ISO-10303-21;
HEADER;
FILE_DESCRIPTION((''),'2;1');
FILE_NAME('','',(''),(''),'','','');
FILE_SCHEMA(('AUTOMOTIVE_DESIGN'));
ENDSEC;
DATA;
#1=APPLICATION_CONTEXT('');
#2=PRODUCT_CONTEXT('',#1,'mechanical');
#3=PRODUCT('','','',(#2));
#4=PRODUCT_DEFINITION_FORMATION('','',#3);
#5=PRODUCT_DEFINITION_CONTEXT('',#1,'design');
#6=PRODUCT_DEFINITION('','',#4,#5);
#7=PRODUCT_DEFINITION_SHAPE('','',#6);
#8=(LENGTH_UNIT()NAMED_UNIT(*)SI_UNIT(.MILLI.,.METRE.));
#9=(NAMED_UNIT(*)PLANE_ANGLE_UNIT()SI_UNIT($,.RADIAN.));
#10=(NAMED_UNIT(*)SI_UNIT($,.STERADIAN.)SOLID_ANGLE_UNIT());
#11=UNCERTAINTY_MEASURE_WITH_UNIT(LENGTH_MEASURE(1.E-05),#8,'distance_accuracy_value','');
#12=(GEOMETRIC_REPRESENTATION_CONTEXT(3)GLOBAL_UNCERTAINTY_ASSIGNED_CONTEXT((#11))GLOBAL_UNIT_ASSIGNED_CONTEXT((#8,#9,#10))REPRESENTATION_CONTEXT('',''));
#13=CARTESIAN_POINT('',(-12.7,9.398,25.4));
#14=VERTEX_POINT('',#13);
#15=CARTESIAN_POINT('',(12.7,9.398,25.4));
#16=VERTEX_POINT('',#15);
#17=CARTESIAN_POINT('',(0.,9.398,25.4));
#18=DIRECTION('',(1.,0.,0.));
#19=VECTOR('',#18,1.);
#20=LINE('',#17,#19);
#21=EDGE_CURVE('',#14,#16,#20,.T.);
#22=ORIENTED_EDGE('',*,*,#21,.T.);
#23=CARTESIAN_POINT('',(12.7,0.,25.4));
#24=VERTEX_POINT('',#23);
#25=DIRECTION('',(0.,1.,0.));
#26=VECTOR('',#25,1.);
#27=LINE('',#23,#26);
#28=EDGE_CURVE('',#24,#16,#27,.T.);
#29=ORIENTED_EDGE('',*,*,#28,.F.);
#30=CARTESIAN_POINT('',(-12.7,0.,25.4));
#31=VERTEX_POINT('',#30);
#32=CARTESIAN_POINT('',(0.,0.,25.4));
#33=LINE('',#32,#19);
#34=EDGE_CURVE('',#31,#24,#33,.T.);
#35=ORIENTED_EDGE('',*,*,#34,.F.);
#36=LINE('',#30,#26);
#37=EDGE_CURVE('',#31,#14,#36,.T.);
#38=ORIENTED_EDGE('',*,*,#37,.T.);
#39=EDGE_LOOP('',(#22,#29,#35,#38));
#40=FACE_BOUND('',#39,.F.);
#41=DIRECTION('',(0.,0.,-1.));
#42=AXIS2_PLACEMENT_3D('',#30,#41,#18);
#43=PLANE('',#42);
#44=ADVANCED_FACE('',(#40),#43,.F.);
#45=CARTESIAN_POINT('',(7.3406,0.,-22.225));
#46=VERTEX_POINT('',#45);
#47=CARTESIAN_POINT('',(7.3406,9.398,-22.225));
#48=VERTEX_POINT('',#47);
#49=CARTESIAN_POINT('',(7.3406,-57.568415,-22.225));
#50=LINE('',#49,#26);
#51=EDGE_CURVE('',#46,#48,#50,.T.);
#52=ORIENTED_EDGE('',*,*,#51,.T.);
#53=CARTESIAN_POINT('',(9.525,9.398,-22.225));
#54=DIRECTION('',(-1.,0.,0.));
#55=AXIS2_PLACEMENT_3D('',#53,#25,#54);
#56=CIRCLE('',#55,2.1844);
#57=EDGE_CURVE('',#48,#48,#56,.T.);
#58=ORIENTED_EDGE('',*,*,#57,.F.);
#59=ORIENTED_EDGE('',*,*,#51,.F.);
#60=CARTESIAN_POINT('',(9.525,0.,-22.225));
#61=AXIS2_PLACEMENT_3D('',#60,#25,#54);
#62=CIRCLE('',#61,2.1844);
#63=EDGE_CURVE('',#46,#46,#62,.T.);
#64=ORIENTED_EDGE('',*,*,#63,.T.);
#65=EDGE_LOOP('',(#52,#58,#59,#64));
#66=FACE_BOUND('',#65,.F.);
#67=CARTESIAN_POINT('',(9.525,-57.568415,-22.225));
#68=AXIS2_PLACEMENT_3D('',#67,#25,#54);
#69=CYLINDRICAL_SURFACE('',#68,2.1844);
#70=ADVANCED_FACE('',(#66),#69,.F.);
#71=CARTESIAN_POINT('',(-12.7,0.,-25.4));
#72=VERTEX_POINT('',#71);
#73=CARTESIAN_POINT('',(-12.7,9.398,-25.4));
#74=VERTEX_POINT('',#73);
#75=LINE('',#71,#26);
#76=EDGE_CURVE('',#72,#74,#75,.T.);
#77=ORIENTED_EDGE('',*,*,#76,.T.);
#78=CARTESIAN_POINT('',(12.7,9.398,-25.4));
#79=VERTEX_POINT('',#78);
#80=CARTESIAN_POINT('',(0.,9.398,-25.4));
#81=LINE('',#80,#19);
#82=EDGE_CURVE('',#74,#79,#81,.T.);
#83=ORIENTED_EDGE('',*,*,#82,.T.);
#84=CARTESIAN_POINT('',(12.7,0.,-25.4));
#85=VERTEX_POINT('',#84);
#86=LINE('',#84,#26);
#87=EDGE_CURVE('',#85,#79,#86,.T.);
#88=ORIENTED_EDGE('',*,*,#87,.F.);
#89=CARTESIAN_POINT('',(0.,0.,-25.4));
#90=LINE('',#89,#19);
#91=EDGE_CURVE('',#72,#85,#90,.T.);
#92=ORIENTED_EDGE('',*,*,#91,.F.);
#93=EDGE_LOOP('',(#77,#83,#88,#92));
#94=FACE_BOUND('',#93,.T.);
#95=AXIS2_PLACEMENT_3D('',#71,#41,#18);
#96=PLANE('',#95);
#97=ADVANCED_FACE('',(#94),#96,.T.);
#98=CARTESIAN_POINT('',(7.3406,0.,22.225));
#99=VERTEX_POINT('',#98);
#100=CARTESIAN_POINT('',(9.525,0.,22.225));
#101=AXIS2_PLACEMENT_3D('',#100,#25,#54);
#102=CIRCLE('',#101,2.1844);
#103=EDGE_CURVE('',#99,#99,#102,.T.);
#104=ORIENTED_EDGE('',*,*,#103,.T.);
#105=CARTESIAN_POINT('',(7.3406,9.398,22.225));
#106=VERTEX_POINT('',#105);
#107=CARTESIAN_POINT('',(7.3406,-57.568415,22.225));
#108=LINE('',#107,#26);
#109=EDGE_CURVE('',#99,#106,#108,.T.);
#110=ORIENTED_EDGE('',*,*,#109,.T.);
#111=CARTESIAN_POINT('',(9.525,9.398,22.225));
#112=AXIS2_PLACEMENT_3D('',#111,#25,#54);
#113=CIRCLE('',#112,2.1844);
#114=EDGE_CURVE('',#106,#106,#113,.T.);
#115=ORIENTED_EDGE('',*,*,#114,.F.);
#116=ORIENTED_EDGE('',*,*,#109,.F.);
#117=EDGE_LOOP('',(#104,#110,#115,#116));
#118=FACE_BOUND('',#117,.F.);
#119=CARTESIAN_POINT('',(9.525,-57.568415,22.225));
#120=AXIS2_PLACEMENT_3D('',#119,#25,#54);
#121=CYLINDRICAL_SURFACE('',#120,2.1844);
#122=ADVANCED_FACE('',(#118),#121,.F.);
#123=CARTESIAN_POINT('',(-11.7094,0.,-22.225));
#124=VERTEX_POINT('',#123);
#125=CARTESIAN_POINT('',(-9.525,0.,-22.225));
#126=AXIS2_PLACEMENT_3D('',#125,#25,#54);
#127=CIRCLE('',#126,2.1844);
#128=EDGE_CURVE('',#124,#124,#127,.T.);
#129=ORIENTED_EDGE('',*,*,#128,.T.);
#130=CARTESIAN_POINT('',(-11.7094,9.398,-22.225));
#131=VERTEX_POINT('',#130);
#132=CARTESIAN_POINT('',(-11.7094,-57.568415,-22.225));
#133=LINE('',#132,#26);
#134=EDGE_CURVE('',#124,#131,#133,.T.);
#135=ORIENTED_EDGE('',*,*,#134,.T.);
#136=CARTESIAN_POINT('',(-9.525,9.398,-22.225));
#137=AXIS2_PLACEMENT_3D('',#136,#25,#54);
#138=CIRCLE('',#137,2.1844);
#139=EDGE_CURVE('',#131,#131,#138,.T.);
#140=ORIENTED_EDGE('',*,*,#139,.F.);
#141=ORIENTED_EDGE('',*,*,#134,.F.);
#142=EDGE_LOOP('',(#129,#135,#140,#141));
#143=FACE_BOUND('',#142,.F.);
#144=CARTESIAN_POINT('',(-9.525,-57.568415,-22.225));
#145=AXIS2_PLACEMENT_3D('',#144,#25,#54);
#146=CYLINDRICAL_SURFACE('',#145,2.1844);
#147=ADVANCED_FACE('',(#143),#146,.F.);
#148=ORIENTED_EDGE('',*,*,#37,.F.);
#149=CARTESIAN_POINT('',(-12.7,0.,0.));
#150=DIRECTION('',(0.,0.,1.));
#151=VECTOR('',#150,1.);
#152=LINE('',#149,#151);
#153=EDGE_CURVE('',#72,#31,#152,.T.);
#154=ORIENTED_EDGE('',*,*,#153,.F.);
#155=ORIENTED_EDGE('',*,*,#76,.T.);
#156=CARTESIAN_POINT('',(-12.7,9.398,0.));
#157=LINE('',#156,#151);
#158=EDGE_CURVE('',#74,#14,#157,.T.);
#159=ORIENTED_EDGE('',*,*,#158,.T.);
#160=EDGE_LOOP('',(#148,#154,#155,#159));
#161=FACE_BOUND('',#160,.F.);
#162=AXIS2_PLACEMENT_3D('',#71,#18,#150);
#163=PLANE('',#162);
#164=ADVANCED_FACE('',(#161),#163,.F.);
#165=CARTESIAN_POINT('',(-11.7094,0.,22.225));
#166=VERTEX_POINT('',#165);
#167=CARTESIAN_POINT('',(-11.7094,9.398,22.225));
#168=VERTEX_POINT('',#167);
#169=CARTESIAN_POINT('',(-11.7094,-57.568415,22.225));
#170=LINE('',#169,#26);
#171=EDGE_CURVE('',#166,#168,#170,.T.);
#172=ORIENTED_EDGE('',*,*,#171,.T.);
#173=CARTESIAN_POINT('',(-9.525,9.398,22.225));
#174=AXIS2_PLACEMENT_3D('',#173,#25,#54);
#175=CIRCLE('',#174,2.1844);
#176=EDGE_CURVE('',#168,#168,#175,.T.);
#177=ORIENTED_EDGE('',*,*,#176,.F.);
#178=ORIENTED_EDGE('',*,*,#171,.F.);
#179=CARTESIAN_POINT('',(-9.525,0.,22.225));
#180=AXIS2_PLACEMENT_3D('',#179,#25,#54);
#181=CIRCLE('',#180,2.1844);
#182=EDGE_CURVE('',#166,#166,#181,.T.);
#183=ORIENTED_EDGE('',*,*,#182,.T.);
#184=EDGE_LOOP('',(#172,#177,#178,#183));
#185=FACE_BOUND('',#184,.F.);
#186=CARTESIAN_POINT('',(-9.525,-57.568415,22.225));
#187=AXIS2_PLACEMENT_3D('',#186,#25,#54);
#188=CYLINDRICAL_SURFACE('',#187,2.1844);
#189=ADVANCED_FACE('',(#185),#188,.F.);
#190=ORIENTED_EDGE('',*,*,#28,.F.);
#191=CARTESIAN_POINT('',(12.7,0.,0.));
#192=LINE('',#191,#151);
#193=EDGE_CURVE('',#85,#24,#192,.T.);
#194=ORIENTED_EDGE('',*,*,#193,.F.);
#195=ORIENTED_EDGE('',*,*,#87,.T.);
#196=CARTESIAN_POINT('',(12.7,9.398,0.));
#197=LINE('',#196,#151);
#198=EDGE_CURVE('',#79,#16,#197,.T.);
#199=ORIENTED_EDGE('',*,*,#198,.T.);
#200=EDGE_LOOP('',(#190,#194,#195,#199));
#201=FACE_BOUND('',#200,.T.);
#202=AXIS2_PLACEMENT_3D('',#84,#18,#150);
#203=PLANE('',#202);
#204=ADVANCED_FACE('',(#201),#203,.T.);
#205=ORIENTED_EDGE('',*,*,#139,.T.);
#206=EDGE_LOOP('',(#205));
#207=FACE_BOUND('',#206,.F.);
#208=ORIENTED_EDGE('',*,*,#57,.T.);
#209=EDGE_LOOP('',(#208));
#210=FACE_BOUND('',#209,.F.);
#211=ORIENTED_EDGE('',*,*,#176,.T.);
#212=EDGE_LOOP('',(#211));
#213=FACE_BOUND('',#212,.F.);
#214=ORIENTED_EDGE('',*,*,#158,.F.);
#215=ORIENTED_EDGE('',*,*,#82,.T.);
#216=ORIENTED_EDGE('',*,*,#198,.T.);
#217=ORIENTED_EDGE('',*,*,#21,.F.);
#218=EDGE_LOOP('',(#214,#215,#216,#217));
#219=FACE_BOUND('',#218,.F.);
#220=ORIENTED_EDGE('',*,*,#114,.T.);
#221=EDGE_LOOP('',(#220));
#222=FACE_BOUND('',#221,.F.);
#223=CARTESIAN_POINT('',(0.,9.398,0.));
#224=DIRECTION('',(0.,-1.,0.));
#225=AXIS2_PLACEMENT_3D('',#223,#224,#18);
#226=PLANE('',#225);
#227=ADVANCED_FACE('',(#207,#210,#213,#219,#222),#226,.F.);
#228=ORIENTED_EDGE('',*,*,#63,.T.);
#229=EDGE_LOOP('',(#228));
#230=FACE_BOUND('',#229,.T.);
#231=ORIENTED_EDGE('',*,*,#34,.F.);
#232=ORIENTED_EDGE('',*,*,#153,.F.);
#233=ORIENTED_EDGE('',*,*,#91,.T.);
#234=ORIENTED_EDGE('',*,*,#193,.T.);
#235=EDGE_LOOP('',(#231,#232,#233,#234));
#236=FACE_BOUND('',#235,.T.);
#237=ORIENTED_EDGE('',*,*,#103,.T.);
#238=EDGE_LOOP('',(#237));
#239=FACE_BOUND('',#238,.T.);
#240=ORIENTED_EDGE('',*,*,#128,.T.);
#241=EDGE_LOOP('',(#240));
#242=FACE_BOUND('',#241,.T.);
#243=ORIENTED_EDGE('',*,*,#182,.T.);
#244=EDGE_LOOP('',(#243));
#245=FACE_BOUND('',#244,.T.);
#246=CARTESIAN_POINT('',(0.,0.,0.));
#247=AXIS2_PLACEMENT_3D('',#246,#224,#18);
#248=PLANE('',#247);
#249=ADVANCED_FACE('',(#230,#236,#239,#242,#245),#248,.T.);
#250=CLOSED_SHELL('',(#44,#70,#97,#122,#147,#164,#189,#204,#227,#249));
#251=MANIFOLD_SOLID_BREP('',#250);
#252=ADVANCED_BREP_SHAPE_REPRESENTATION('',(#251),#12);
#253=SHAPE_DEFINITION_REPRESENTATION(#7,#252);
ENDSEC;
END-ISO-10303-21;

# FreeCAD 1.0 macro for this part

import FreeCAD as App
import Part
import Sketcher
from FreeCAD import Vector
Q = App.Units.Quantity


def add_polygon(sketch, points):
    """Adds a closed chain of lines whose ends are joined by coincident constraints."""
    first, n = sketch.GeometryCount, len(points)
    for a, b in zip(points, points[1:] + points[:1]):
        sketch.addGeometry(Part.LineSegment(App.Vector(*a, 0), App.Vector(*b, 0)), False)
    for i in range(n):
        sketch.addConstraint(Sketcher.Constraint("Coincident", first + i, 2, first + (i + 1) % n, 1))

doc = App.newDocument("Part")
body = doc.addObject("PartDesign::Body", "Body")

# Sketch on XZ plane
sketch1 = doc.addObject("Sketcher::SketchObject", "Sketch")
body.addObject(sketch1)
sketch1.AttachmentSupport = (doc.XZ_Plane, [""])
sketch1.MapMode = "FlatFace"
add_polygon(sketch1, [(-12.7, 25.4), (-12.7, -25.4), (12.7, -25.4), (12.7, 25.4)])  # lines 0-3
sketch1.addConstraint(Sketcher.Constraint("Vertical", 0))
sketch1.addConstraint(Sketcher.Constraint("Horizontal", 1))
sketch1.addConstraint(Sketcher.Constraint("Vertical", 2))
sketch1.addConstraint(Sketcher.Constraint("Horizontal", 3))
sketch1.addConstraint(Sketcher.Constraint("Symmetric", 0, 2, 2, 2, -1, 1))
sketch1.addConstraint(Sketcher.Constraint("DistanceX", 1, 1, 1, 2, Q("1 in")))
sketch1.addConstraint(Sketcher.Constraint("DistanceY", 0, 2, 0, 1, Q("2 in")))
pad1 = doc.addObject("PartDesign::Pad", "Pad")
body.addObject(pad1)
pad1.Profile = sketch1
pad1.Length = Q("0.37 in")
pad1.Reversed = True

# Sketch on XZ plane
sketch2 = doc.addObject("Sketcher::SketchObject", "Sketch001")
body.addObject(sketch2)
sketch2.AttachmentSupport = (doc.XZ_Plane, [""])
sketch2.MapMode = "FlatFace"
sketch2.addGeometry(Part.Circle(Vector(-9.525, 22.225, 0), Vector(0, 0, 1), 2.1844), False)
sketch2.addGeometry(Part.Circle(Vector(9.525, 22.225, 0), Vector(0, 0, 1), 2.1844), False)
sketch2.addGeometry(Part.Circle(Vector(9.525, -22.225, 0), Vector(0, 0, 1), 2.1844), False)
sketch2.addGeometry(Part.Circle(Vector(-9.525, -22.225, 0), Vector(0, 0, 1), 2.1844), False)
sketch2.addConstraint(Sketcher.Constraint("Equal", 0, 1))
sketch2.addConstraint(Sketcher.Constraint("Equal", 1, 2))
sketch2.addConstraint(Sketcher.Constraint("Equal", 2, 3))
sketch2.addConstraint(Sketcher.Constraint("Symmetric", 0, 3, 2, 3, -1, 1))
sketch2.addConstraint(Sketcher.Constraint("Symmetric", 1, 3, 3, 3, -1, 1))
sketch2.addConstraint(Sketcher.Constraint("Symmetric", 0, 3, 1, 3, -2))
sketch2.addConstraint(Sketcher.Constraint("Diameter", 0, Q("0.172 in")))
sketch2.addConstraint(Sketcher.Constraint("DistanceX", 0, 3, 1, 3, Q("0.75 in")))
sketch2.addConstraint(Sketcher.Constraint("DistanceY", 2, 3, 1, 3, Q("1.75 in")))
doc.recompute()
hole = doc.addObject("PartDesign::Hole", "Hole")
body.addObject(hole)
hole.Profile = sketch2
hole.ThreadType = "None"
hole.Diameter = Q("0.172 in")
hole.DepthType = "ThroughAll"

doc.recompute()
